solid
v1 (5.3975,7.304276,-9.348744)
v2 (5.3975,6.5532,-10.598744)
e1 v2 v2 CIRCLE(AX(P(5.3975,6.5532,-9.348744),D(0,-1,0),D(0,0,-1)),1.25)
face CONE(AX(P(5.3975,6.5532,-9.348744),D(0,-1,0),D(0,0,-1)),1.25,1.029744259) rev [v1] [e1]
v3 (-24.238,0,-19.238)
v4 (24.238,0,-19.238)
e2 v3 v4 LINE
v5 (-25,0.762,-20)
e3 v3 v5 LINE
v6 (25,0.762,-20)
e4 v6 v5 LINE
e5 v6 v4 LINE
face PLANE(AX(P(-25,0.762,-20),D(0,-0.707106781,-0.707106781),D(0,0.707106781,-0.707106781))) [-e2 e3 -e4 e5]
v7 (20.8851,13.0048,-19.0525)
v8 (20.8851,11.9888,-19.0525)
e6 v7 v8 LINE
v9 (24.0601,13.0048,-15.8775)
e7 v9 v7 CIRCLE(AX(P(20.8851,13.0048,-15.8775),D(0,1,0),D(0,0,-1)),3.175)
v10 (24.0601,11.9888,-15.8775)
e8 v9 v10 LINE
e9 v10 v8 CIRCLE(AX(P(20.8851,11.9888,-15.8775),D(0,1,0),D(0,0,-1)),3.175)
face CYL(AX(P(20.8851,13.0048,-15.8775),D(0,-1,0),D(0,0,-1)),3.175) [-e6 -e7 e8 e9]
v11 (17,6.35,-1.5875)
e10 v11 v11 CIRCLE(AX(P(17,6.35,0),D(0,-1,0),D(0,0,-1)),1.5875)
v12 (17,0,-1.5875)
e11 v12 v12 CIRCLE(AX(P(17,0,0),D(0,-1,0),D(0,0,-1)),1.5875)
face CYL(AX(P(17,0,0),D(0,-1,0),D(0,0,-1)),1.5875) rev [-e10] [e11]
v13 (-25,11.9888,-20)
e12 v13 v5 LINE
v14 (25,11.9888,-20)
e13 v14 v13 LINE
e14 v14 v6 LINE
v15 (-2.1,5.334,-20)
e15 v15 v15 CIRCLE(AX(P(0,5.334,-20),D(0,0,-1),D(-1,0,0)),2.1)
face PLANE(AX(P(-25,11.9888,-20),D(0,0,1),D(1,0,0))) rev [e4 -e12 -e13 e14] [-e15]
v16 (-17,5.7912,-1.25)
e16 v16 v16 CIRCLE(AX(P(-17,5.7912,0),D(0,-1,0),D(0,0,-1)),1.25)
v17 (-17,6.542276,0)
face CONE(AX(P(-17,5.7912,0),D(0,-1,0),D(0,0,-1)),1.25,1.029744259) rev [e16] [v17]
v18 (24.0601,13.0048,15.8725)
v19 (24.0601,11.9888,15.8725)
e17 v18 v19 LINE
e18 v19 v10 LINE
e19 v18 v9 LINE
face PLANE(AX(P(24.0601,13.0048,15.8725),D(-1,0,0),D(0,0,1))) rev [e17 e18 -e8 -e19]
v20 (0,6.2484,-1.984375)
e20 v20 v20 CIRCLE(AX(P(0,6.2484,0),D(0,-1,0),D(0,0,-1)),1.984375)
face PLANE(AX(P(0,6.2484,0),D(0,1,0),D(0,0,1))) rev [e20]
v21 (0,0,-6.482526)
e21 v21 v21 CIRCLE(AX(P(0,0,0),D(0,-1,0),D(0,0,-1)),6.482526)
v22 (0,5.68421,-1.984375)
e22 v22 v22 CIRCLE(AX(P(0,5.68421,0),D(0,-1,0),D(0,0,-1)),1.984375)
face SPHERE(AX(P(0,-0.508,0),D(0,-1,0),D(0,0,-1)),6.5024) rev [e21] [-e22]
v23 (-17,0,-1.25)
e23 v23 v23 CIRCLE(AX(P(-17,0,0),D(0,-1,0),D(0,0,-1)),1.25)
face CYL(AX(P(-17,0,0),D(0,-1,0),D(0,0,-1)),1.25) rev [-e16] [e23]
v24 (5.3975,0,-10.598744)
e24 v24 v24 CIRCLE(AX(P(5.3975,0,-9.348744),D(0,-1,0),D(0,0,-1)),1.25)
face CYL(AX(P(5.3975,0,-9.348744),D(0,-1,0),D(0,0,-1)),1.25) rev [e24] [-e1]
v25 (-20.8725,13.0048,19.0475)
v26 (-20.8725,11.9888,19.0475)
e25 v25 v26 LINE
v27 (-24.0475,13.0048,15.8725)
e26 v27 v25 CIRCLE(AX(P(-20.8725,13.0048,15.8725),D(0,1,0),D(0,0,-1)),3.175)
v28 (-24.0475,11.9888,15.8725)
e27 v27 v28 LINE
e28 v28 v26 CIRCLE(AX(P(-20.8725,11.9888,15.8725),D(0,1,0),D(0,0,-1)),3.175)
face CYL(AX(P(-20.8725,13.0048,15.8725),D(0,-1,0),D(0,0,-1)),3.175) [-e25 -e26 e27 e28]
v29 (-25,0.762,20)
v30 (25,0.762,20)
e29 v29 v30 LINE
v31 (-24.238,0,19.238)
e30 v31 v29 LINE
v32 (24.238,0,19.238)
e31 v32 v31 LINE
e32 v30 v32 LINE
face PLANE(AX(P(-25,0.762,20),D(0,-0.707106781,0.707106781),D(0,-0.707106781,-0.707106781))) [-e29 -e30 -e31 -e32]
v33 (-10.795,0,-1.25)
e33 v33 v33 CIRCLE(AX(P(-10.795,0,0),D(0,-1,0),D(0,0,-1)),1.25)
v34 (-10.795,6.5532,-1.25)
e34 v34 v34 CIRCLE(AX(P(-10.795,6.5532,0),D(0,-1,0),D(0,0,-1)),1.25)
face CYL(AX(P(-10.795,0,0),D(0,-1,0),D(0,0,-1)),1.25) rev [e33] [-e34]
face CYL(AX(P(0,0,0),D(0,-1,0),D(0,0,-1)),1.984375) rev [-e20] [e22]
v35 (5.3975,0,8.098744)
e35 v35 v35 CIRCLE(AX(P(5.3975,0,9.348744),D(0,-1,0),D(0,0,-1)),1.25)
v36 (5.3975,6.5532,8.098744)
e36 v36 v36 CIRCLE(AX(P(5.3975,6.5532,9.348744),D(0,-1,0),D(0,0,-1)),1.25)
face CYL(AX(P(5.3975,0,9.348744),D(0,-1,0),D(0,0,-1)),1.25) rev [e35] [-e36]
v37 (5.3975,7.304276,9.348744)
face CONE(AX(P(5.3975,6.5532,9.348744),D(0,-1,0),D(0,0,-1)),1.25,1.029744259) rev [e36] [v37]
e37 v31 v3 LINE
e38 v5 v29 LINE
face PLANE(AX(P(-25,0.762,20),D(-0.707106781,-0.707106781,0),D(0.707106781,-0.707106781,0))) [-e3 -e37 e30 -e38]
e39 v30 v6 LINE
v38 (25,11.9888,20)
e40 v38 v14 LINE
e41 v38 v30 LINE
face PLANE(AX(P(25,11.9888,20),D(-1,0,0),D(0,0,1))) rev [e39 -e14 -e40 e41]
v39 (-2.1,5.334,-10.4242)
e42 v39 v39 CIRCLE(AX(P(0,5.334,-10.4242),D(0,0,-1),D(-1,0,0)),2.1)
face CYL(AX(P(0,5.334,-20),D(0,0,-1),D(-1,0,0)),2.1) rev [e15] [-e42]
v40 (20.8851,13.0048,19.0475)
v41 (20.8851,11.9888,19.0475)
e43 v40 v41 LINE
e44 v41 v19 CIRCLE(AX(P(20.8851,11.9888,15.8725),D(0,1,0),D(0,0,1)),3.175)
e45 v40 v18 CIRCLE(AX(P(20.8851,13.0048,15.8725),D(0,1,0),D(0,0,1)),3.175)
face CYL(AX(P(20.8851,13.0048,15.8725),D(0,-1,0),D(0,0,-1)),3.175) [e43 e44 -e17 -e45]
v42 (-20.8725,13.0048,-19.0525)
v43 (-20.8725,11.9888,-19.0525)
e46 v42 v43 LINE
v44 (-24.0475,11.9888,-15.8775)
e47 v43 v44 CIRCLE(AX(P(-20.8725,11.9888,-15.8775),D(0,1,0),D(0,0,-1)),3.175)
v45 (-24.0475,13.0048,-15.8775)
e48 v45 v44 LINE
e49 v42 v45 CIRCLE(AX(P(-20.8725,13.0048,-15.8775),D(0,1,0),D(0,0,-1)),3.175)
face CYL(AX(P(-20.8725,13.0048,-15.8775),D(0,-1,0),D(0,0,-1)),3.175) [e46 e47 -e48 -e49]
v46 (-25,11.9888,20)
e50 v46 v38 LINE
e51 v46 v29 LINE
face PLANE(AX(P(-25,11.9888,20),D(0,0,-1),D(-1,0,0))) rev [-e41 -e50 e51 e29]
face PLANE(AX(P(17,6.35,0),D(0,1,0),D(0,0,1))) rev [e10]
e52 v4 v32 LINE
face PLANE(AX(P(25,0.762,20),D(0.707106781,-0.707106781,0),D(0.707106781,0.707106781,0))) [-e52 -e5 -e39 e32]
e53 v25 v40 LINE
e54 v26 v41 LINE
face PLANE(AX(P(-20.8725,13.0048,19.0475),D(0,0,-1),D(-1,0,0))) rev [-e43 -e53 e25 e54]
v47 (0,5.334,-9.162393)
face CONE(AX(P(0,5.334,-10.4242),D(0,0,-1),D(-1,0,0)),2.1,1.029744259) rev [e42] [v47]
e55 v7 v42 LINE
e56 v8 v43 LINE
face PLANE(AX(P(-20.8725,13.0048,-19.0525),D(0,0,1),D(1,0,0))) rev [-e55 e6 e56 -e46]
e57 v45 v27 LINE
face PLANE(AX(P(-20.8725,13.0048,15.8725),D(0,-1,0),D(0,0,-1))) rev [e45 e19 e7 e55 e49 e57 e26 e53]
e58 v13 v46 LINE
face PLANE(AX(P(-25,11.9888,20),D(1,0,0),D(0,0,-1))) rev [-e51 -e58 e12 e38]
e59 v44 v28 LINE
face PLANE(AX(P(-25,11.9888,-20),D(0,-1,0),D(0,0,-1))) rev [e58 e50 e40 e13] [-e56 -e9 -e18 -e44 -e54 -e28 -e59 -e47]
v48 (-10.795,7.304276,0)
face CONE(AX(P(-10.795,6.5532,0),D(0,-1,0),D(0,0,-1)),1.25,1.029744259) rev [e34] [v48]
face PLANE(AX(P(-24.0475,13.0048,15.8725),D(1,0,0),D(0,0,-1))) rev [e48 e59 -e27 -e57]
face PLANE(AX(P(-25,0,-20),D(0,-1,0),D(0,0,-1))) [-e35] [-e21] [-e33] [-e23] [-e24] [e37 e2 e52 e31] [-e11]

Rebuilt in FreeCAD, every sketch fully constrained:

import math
import FreeCAD as App
import Part
import Sketcher
from FreeCAD import Vector
Q = App.Units.Quantity


def edges_at(feature, points):
    """Names of the edges that pass closest to the given points."""
    edges = feature.Shape.Edges
    near = lambda p: min(range(len(edges)), key=lambda i: edges[i].distToShape(Part.Vertex(*p))[0])
    return sorted({f"Edge{near(p) + 1}" for p in points})

doc = App.newDocument("Part")
body = doc.addObject("PartDesign::Body", "Body")

sketch1 = doc.addObject("Sketcher::SketchObject", "Sketch")
body.addObject(sketch1)
sketch1.AttachmentSupport = (doc.XZ_Plane, [""])
sketch1.MapMode = "FlatFace"
sketch1.addGeometry(Part.LineSegment(Vector(-25, -20, 0), Vector(-25, 20, 0)), False)
sketch1.addGeometry(Part.LineSegment(Vector(-25, 20, 0), Vector(25, 20, 0)), False)
sketch1.addGeometry(Part.LineSegment(Vector(25, 20, 0), Vector(25, -20, 0)), False)
sketch1.addGeometry(Part.LineSegment(Vector(25, -20, 0), Vector(-25, -20, 0)), False)
sketch1.addConstraint(Sketcher.Constraint("Coincident", 0, 2, 1, 1))
sketch1.addConstraint(Sketcher.Constraint("Coincident", 1, 2, 2, 1))
sketch1.addConstraint(Sketcher.Constraint("Coincident", 2, 2, 3, 1))
sketch1.addConstraint(Sketcher.Constraint("Coincident", 3, 2, 0, 1))
sketch1.addConstraint(Sketcher.Constraint("Vertical", 0))
sketch1.addConstraint(Sketcher.Constraint("Horizontal", 1))
sketch1.addConstraint(Sketcher.Constraint("Vertical", 2))
sketch1.addConstraint(Sketcher.Constraint("Horizontal", 3))
sketch1.addConstraint(Sketcher.Constraint("Symmetric", 0, 2, 2, 2, -1, 1))
sketch1.addConstraint(Sketcher.Constraint("DistanceX", 1, 1, 1, 2, 50.0))
sketch1.addConstraint(Sketcher.Constraint("DistanceY", 0, 1, 0, 2, 40.0))
pad1 = doc.addObject("PartDesign::Pad", "Pad")
body.addObject(pad1)
pad1.Profile = sketch1
pad1.Length = Q("0.472 in")
pad1.Reversed = True

sketch2 = doc.addObject("Sketcher::SketchObject", "Sketch001")
body.addObject(sketch2)
sketch2.AttachmentSupport = (doc.XY_Plane, [""])
sketch2.MapMode = "FlatFace"
sketch2.AttachmentOffset = App.Placement(Vector(0, 0, -20), App.Rotation())
sketch2.addGeometry(Part.Circle(Vector(0, 5.334, 0), Vector(0, 0, 1), 2.1), False)
sketch2.addConstraint(Sketcher.Constraint("PointOnObject", 0, 3, -2))
sketch2.addConstraint(Sketcher.Constraint("Diameter", 0, 4.2))
sketch2.addConstraint(Sketcher.Constraint("DistanceY", -1, 1, 0, 3, Q("0.21 in")))
doc.recompute()
hole = doc.addObject("PartDesign::Hole", "Hole")
body.addObject(hole)
hole.Profile = sketch2
hole.ThreadType = "None"
hole.Diameter = 4.2
hole.DepthType = "Dimension"
hole.Depth = Q("0.377 in")
hole.DrillPoint = "Angled"
hole.DrillPointAngle = 118
hole.Reversed = True

sketch3 = doc.addObject("Sketcher::SketchObject", "Sketch002")
body.addObject(sketch3)
sketch3.AttachmentSupport = (doc.XZ_Plane, [""])
sketch3.MapMode = "FlatFace"
sketch3.addGeometry(Part.Circle(Vector(17, 0, 0), Vector(0, 0, 1), 1.5875), False)
sketch3.addConstraint(Sketcher.Constraint("PointOnObject", 0, 3, -1))
sketch3.addConstraint(Sketcher.Constraint("Diameter", 0, Q("0.125 in")))
sketch3.addConstraint(Sketcher.Constraint("DistanceX", -1, 1, 0, 3, 17.0))
doc.recompute()
hole2 = doc.addObject("PartDesign::Hole", "Hole001")
body.addObject(hole2)
hole2.Profile = sketch3
hole2.ThreadType = "None"
hole2.Diameter = Q("0.125 in")
hole2.DepthType = "Dimension"
hole2.Depth = Q("0.25 in")
hole2.DrillPoint = "Flat"

sketch4 = doc.addObject("Sketcher::SketchObject", "Sketch003")
body.addObject(sketch4)
sketch4.AttachmentSupport = (doc.YZ_Plane, [""])
sketch4.MapMode = "FlatFace"
sketch4.AttachmentOffset = App.Placement(Vector(0, 0, -0.425 * 25.4), App.Rotation())
sketch4.addGeometry(Part.LineSegment(Vector(7.304276, 0, 0), Vector(0, 0, 0)), False)
sketch4.addGeometry(Part.LineSegment(Vector(0, 0, 0), Vector(0, -1.25, 0)), False)
sketch4.addGeometry(Part.LineSegment(Vector(0, -1.25, 0), Vector(6.5532, -1.25, 0)), False)
sketch4.addGeometry(Part.LineSegment(Vector(6.5532, -1.25, 0), Vector(7.304276, 0, 0)), False)
sketch4.addConstraint(Sketcher.Constraint("Coincident", 0, 2, 1, 1))
sketch4.addConstraint(Sketcher.Constraint("Coincident", 1, 2, 2, 1))
sketch4.addConstraint(Sketcher.Constraint("Coincident", 2, 2, 3, 1))
sketch4.addConstraint(Sketcher.Constraint("Coincident", 3, 2, 0, 1))
sketch4.addConstraint(Sketcher.Constraint("Horizontal", 0))
sketch4.addConstraint(Sketcher.Constraint("Vertical", 1))
sketch4.addConstraint(Sketcher.Constraint("Horizontal", 2))
sketch4.addConstraint(Sketcher.Constraint("Coincident", 0, 2, -1, 1))
sketch4.addConstraint(Sketcher.Constraint("Angle", 3, Q("59 deg")))
sketch4.addConstraint(Sketcher.Constraint("DistanceX", 2, 1, 2, 2, Q("0.258 in")))
sketch4.addConstraint(Sketcher.Constraint("DistanceY", 1, 2, 1, 1, 1.25))
groove = doc.addObject("PartDesign::Groove", "Groove")
body.addObject(groove)
groove.Profile = sketch4
groove.ReferenceAxis = (sketch4, ["H_Axis"])
groove.Angle = 360
doc.recompute()

polarpattern = doc.addObject("PartDesign::PolarPattern", "PolarPattern")
body.addObject(polarpattern)
polarpattern.Originals = [groove]
polarpattern.Axis = (doc.Y_Axis, [""])
polarpattern.Angle = 360
polarpattern.Occurrences = 3
body.Tip = polarpattern

sketch5 = doc.addObject("Sketcher::SketchObject", "Sketch004")
body.addObject(sketch5)
sketch5.AttachmentSupport = (doc.XZ_Plane, [""])
sketch5.MapMode = "FlatFace"
sketch5.addGeometry(Part.Circle(Vector(0, 0, 0), Vector(0, 0, 1), 1.984375), False)
sketch5.addConstraint(Sketcher.Constraint("Coincident", 0, 3, -1, 1))
sketch5.addConstraint(Sketcher.Constraint("Diameter", 0, Q("0.15625 in")))
doc.recompute()
hole3 = doc.addObject("PartDesign::Hole", "Hole002")
body.addObject(hole3)
hole3.Profile = sketch5
hole3.ThreadType = "None"
hole3.Diameter = Q("0.15625 in")
hole3.DepthType = "Dimension"
hole3.Depth = Q("0.246 in")
hole3.DrillPoint = "Flat"

sketch6 = doc.addObject("Sketcher::SketchObject", "Sketch005")
body.addObject(sketch6)
sketch6.AttachmentSupport = (doc.XZ_Plane, [""])
sketch6.MapMode = "FlatFace"
sketch6.AttachmentOffset = App.Placement(Vector(0, 0, 0.02 * 25.4), App.Rotation())
sketch6.addGeometry(Part.LineSegment(Vector(0, 6.5024, 0), Vector(0, -6.5024, 0)), False)
sketch6.addGeometry(Part.ArcOfCircle(Part.Circle(Vector(0, 0, 0), Vector(0, 0, 1), 6.5024), math.radians(-90), math.radians(90)), False)
sketch6.addConstraint(Sketcher.Constraint("Coincident", 0, 1, 1, 2))
sketch6.addConstraint(Sketcher.Constraint("Coincident", 1, 1, 0, 2))
sketch6.addConstraint(Sketcher.Constraint("Vertical", 0))
sketch6.addConstraint(Sketcher.Constraint("Coincident", 1, 3, -1, 1))
sketch6.addConstraint(Sketcher.Constraint("PointOnObject", 0, 1, -2))
sketch6.addConstraint(Sketcher.Constraint("Radius", 1, Q("0.256 in")))
groove2 = doc.addObject("PartDesign::Groove", "Groove001")
body.addObject(groove2)
groove2.Profile = sketch6
groove2.ReferenceAxis = (sketch6, ["V_Axis"])
groove2.Angle = 360

sketch7 = doc.addObject("Sketcher::SketchObject", "Sketch006")
body.addObject(sketch7)
sketch7.AttachmentSupport = (doc.XZ_Plane, [""])
sketch7.MapMode = "FlatFace"
sketch7.addGeometry(Part.Circle(Vector(-17, 0, 0), Vector(0, 0, 1), 1.25), False)
sketch7.addConstraint(Sketcher.Constraint("PointOnObject", 0, 3, -1))
sketch7.addConstraint(Sketcher.Constraint("Diameter", 0, 2.5))
sketch7.addConstraint(Sketcher.Constraint("DistanceX", 0, 3, -1, 1, 17.0))
doc.recompute()
hole4 = doc.addObject("PartDesign::Hole", "Hole003")
body.addObject(hole4)
hole4.Profile = sketch7
hole4.ThreadType = "None"
hole4.Diameter = 2.5
hole4.DepthType = "Dimension"
hole4.Depth = Q("0.228 in")
hole4.DrillPoint = "Angled"
hole4.DrillPointAngle = 118
doc.recompute()

chamfer = doc.addObject("PartDesign::Chamfer", "Chamfer")
body.addObject(chamfer)
chamfer.Base = (hole4, edges_at(hole4, [
    (0, 0, -20),
    (25, 0, 0),
    (0, 0, 20),
    (-25, 0, 0),
]))
chamfer.Size = Q("0.03 in")

sketch8 = doc.addObject("Sketcher::SketchObject", "Sketch007")
body.addObject(sketch8)
sketch8.AttachmentSupport = (doc.XZ_Plane, [""])
sketch8.MapMode = "FlatFace"
sketch8.AttachmentOffset = App.Placement(Vector(0, 0, -0.472 * 25.4), App.Rotation())
sketch8.addGeometry(Part.LineSegment(Vector(-20.8725, 19.0475, 0), Vector(20.8851, 19.0475, 0)), False)
sketch8.addGeometry(Part.ArcOfCircle(Part.Circle(Vector(20.8851, 15.8725, 0), Vector(0, 0, 1), 3.175), math.radians(0), math.radians(90)), False)
sketch8.addGeometry(Part.LineSegment(Vector(24.0601, 15.8725, 0), Vector(24.0601, -15.8775, 0)), False)
sketch8.addGeometry(Part.ArcOfCircle(Part.Circle(Vector(20.8851, -15.8775, 0), Vector(0, 0, 1), 3.175), math.radians(-90), math.radians(0)), False)
sketch8.addGeometry(Part.LineSegment(Vector(20.8851, -19.0525, 0), Vector(-20.8725, -19.0525, 0)), False)
sketch8.addGeometry(Part.ArcOfCircle(Part.Circle(Vector(-20.8725, -15.8775, 0), Vector(0, 0, 1), 3.175), math.radians(-180), math.radians(-90)), False)
sketch8.addGeometry(Part.LineSegment(Vector(-24.0475, -15.8775, 0), Vector(-24.0475, 15.8725, 0)), False)
sketch8.addGeometry(Part.ArcOfCircle(Part.Circle(Vector(-20.8725, 15.8725, 0), Vector(0, 0, 1), 3.175), math.radians(90), math.radians(180)), False)
sketch8.addConstraint(Sketcher.Constraint("Tangent", 0, 2, 1, 2))
sketch8.addConstraint(Sketcher.Constraint("Tangent", 1, 1, 2, 1))
sketch8.addConstraint(Sketcher.Constraint("Tangent", 2, 2, 3, 2))
sketch8.addConstraint(Sketcher.Constraint("Tangent", 3, 1, 4, 1))
sketch8.addConstraint(Sketcher.Constraint("Tangent", 4, 2, 5, 2))
sketch8.addConstraint(Sketcher.Constraint("Tangent", 5, 1, 6, 1))
sketch8.addConstraint(Sketcher.Constraint("Tangent", 6, 2, 7, 2))
sketch8.addConstraint(Sketcher.Constraint("Tangent", 7, 1, 0, 1))
sketch8.addConstraint(Sketcher.Constraint("Horizontal", 0))
sketch8.addConstraint(Sketcher.Constraint("Vertical", 2))
sketch8.addConstraint(Sketcher.Constraint("Horizontal", 4))
sketch8.addConstraint(Sketcher.Constraint("Vertical", 6))
sketch8.addConstraint(Sketcher.Constraint("Equal", 1, 3))
sketch8.addConstraint(Sketcher.Constraint("Equal", 3, 5))
sketch8.addConstraint(Sketcher.Constraint("Equal", 5, 7))
sketch8.addConstraint(Sketcher.Constraint("Radius", 1, Q("0.125 in")))
sketch8.addConstraint(Sketcher.Constraint("DistanceY", 2, 2, 2, 1, Q("1.25 in")))
sketch8.addConstraint(Sketcher.Constraint("DistanceX", 0, 1, 0, 2, Q("1.644 in")))
sketch8.addConstraint(Sketcher.Constraint("DistanceX", -1, 1, 1, 3, 20.8851))
sketch8.addConstraint(Sketcher.Constraint("DistanceY", -1, 1, 1, 3, 15.8725))
pad2 = doc.addObject("PartDesign::Pad", "Pad001")
body.addObject(pad2)
pad2.Profile = sketch8
pad2.Length = Q("0.04 in")
pad2.Reversed = True

doc.recompute()
